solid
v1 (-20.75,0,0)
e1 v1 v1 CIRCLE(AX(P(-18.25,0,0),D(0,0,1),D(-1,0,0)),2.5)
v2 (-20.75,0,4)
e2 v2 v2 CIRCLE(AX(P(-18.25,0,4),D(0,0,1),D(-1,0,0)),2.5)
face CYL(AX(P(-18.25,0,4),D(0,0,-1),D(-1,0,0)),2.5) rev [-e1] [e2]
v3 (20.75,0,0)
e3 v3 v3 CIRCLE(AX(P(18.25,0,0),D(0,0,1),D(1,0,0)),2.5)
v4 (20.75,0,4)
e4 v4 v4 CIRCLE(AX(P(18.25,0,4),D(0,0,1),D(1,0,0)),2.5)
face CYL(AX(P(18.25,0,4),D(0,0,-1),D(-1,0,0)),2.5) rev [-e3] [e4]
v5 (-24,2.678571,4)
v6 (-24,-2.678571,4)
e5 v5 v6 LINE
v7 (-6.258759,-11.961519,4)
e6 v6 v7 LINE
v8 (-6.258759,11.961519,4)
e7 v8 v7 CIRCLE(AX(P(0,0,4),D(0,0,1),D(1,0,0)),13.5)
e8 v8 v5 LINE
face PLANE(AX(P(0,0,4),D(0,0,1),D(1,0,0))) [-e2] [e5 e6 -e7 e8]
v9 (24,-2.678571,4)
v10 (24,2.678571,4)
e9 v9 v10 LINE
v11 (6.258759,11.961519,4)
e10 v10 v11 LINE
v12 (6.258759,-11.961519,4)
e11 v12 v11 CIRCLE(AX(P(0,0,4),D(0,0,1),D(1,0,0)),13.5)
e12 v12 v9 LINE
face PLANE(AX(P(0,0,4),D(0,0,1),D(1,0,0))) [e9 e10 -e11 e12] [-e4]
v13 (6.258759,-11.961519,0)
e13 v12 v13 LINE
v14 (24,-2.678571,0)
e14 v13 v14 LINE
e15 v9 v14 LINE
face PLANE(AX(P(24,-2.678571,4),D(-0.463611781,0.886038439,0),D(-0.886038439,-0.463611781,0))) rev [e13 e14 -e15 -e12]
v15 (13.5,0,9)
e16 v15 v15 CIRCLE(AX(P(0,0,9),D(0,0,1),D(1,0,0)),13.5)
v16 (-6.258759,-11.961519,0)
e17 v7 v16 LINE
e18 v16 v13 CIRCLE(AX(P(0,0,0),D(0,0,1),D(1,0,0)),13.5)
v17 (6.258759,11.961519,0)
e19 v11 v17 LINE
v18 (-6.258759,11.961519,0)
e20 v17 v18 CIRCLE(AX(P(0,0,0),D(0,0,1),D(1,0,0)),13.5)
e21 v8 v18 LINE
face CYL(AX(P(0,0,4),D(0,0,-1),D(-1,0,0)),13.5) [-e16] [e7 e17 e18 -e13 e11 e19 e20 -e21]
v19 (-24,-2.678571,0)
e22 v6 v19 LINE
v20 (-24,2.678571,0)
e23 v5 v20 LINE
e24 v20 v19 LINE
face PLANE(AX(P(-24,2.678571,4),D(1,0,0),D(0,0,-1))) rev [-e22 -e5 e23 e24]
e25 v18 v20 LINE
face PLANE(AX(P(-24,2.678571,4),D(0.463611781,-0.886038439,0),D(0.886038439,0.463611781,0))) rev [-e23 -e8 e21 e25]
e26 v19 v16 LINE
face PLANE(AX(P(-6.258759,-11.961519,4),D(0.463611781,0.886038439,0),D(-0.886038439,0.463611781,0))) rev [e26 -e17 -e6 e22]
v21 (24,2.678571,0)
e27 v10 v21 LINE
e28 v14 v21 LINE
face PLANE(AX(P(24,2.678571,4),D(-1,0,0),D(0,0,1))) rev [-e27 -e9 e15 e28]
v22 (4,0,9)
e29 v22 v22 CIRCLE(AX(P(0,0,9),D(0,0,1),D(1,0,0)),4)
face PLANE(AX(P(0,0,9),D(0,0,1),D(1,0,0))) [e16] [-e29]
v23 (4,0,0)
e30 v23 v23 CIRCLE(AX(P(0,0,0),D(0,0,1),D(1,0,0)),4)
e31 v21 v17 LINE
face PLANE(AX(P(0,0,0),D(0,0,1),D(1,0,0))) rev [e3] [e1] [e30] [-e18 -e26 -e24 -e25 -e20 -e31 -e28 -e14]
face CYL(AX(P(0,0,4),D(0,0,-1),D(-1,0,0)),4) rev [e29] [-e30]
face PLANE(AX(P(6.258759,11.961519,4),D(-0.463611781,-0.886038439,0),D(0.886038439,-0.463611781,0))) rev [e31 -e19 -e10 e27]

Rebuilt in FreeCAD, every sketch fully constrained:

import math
import FreeCAD as App
import Part
import Sketcher
Q = App.Units.Quantity

doc = App.newDocument("Part")
params = doc.addObject("Spreadsheet::Sheet", "Params")
for row, (alias, value) in enumerate([
    ("sketch1_diameter", "5 mm"),
    ("sketch1_diameter2", "8 mm"),
    ("sketch1_radius", "13.5 mm"),
    ("pad1_length", "4 mm"),
    ("sketch2_diameter", "27 mm"),
    ("sketch2_diameter2", "8 mm"),
    ("pad2_length", "5 mm"),
], start=1):
    params.set(f"A{row}", alias)
    params.set(f"B{row}", "=" + value)
    params.setAlias(f"B{row}", alias)

body = doc.addObject("PartDesign::Body", "Body")

# Sketch on XY plane
sketch1 = body.newObject("Sketcher::SketchObject", "Sketch")
sketch1.AttachmentSupport = (doc.getObject("XY_Plane"), [""])
sketch1.MapMode = "FlatFace"
sketch1.addGeometry([
    Part.LineSegment(App.Vector(24, -2.7, 0), App.Vector(24, 2.7, 0)),  # 0
    Part.LineSegment(App.Vector(24, 2.7, 0), App.Vector(6.3, 12, 0)),  # 1
    Part.ArcOfCircle(Part.Circle(App.Vector(0, 0, 0), App.Vector(0, 0, 1), 13.5), math.radians(62), math.radians(118)),  # 2
    Part.LineSegment(App.Vector(-6.3, 12, 0), App.Vector(-24, 2.7, 0)),  # 3
    Part.LineSegment(App.Vector(-24, 2.7, 0), App.Vector(-24, -2.7, 0)),  # 4
    Part.LineSegment(App.Vector(-24, -2.7, 0), App.Vector(-6.3, -12, 0)),  # 5
    Part.ArcOfCircle(Part.Circle(App.Vector(0, 0, 0), App.Vector(0, 0, 1), 13.5), math.radians(-118), math.radians(-62)),  # 6
    Part.LineSegment(App.Vector(6.3, -12, 0), App.Vector(24, -2.7, 0)),  # 7
    Part.Circle(App.Vector(18.2, 0, 0), App.Vector(0, 0, 1), 2.5),  # 8
    Part.Circle(App.Vector(0, 0, 0), App.Vector(0, 0, 1), 4),  # 9
    Part.Circle(App.Vector(-18.2, 0, 0), App.Vector(0, 0, 1), 2.5),  # 10
], False)
sketch1.addConstraint([
    Sketcher.Constraint("Coincident", 0, 2, 1, 1),
    Sketcher.Constraint("Tangent", 1, 2, 2, 1),
    Sketcher.Constraint("Tangent", 2, 2, 3, 1),
    Sketcher.Constraint("Coincident", 3, 2, 4, 1),
    Sketcher.Constraint("Coincident", 4, 2, 5, 1),
    Sketcher.Constraint("Tangent", 5, 2, 6, 1),
    Sketcher.Constraint("Tangent", 6, 2, 7, 1),
    Sketcher.Constraint("Coincident", 7, 2, 0, 1),
    Sketcher.Constraint("Vertical", 0),
    Sketcher.Constraint("Vertical", 4),
    Sketcher.Constraint("Coincident", 2, 3, -1, 1),
    Sketcher.Constraint("Coincident", 6, 3, -1, 1),
    Sketcher.Constraint("Coincident", 9, 3, -1, 1),
    Sketcher.Constraint("Equal", 2, 6),
    Sketcher.Constraint("Equal", 8, 10),
    Sketcher.Constraint("Symmetric", 8, 3, 10, 3, -1, 1),
    Sketcher.Constraint("Symmetric", 0, 2, 4, 2, -1, 1),
    Sketcher.Constraint("PointOnObject", 8, 3, -1),
    Sketcher.Constraint("Parallel", 3, 7),
    Sketcher.Constraint("Horizontal", 1, 2, 2, 2),
    Sketcher.Constraint("Diameter", 8, Q("5 mm")),
    Sketcher.Constraint("Diameter", 9, Q("8 mm")),
    Sketcher.Constraint("Radius", 2, Q("13.5 mm")),
    Sketcher.Constraint("DistanceX", -1, 1, 0, 2, Q("24 mm")),
    Sketcher.Constraint("DistanceX", 10, 3, 8, 3, Q("36.5 mm")),
    Sketcher.Constraint("DistanceY", 0, 1, 0, 2, Q("5.357143 mm")),
])
sketch1.setExpression("Constraints[20]", "Params.sketch1_diameter")
sketch1.setExpression("Constraints[21]", "Params.sketch1_diameter2")
sketch1.setExpression("Constraints[22]", "Params.sketch1_radius")
pad1 = body.newObject("PartDesign::Pad", "Pad")
pad1.Profile = sketch1
pad1.setExpression("Length", "Params.pad1_length")

# Sketch on XY plane
sketch2 = body.newObject("Sketcher::SketchObject", "Sketch001")
sketch2.AttachmentSupport = (doc.getObject("XY_Plane"), [""])
sketch2.MapMode = "FlatFace"
sketch2.AttachmentOffset = App.Placement(App.Vector(0, 0, 4), App.Rotation())
sketch2.addGeometry([
    Part.Circle(App.Vector(0, 0, 0), App.Vector(0, 0, 1), 13.5),
    Part.Circle(App.Vector(0, 0, 0), App.Vector(0, 0, 1), 4),
], False)
sketch2.addConstraint([
    Sketcher.Constraint("Coincident", 0, 3, -1, 1),
    Sketcher.Constraint("Coincident", 1, 3, -1, 1),
    Sketcher.Constraint("Diameter", 0, Q("27 mm")),
    Sketcher.Constraint("Diameter", 1, Q("8 mm")),
])
sketch2.setExpression("Constraints[2]", "Params.sketch2_diameter")
sketch2.setExpression("Constraints[3]", "Params.sketch2_diameter2")
pad2 = body.newObject("PartDesign::Pad", "Pad001")
pad2.Profile = sketch2
pad2.setExpression("Length", "Params.pad2_length")

doc.recompute()
